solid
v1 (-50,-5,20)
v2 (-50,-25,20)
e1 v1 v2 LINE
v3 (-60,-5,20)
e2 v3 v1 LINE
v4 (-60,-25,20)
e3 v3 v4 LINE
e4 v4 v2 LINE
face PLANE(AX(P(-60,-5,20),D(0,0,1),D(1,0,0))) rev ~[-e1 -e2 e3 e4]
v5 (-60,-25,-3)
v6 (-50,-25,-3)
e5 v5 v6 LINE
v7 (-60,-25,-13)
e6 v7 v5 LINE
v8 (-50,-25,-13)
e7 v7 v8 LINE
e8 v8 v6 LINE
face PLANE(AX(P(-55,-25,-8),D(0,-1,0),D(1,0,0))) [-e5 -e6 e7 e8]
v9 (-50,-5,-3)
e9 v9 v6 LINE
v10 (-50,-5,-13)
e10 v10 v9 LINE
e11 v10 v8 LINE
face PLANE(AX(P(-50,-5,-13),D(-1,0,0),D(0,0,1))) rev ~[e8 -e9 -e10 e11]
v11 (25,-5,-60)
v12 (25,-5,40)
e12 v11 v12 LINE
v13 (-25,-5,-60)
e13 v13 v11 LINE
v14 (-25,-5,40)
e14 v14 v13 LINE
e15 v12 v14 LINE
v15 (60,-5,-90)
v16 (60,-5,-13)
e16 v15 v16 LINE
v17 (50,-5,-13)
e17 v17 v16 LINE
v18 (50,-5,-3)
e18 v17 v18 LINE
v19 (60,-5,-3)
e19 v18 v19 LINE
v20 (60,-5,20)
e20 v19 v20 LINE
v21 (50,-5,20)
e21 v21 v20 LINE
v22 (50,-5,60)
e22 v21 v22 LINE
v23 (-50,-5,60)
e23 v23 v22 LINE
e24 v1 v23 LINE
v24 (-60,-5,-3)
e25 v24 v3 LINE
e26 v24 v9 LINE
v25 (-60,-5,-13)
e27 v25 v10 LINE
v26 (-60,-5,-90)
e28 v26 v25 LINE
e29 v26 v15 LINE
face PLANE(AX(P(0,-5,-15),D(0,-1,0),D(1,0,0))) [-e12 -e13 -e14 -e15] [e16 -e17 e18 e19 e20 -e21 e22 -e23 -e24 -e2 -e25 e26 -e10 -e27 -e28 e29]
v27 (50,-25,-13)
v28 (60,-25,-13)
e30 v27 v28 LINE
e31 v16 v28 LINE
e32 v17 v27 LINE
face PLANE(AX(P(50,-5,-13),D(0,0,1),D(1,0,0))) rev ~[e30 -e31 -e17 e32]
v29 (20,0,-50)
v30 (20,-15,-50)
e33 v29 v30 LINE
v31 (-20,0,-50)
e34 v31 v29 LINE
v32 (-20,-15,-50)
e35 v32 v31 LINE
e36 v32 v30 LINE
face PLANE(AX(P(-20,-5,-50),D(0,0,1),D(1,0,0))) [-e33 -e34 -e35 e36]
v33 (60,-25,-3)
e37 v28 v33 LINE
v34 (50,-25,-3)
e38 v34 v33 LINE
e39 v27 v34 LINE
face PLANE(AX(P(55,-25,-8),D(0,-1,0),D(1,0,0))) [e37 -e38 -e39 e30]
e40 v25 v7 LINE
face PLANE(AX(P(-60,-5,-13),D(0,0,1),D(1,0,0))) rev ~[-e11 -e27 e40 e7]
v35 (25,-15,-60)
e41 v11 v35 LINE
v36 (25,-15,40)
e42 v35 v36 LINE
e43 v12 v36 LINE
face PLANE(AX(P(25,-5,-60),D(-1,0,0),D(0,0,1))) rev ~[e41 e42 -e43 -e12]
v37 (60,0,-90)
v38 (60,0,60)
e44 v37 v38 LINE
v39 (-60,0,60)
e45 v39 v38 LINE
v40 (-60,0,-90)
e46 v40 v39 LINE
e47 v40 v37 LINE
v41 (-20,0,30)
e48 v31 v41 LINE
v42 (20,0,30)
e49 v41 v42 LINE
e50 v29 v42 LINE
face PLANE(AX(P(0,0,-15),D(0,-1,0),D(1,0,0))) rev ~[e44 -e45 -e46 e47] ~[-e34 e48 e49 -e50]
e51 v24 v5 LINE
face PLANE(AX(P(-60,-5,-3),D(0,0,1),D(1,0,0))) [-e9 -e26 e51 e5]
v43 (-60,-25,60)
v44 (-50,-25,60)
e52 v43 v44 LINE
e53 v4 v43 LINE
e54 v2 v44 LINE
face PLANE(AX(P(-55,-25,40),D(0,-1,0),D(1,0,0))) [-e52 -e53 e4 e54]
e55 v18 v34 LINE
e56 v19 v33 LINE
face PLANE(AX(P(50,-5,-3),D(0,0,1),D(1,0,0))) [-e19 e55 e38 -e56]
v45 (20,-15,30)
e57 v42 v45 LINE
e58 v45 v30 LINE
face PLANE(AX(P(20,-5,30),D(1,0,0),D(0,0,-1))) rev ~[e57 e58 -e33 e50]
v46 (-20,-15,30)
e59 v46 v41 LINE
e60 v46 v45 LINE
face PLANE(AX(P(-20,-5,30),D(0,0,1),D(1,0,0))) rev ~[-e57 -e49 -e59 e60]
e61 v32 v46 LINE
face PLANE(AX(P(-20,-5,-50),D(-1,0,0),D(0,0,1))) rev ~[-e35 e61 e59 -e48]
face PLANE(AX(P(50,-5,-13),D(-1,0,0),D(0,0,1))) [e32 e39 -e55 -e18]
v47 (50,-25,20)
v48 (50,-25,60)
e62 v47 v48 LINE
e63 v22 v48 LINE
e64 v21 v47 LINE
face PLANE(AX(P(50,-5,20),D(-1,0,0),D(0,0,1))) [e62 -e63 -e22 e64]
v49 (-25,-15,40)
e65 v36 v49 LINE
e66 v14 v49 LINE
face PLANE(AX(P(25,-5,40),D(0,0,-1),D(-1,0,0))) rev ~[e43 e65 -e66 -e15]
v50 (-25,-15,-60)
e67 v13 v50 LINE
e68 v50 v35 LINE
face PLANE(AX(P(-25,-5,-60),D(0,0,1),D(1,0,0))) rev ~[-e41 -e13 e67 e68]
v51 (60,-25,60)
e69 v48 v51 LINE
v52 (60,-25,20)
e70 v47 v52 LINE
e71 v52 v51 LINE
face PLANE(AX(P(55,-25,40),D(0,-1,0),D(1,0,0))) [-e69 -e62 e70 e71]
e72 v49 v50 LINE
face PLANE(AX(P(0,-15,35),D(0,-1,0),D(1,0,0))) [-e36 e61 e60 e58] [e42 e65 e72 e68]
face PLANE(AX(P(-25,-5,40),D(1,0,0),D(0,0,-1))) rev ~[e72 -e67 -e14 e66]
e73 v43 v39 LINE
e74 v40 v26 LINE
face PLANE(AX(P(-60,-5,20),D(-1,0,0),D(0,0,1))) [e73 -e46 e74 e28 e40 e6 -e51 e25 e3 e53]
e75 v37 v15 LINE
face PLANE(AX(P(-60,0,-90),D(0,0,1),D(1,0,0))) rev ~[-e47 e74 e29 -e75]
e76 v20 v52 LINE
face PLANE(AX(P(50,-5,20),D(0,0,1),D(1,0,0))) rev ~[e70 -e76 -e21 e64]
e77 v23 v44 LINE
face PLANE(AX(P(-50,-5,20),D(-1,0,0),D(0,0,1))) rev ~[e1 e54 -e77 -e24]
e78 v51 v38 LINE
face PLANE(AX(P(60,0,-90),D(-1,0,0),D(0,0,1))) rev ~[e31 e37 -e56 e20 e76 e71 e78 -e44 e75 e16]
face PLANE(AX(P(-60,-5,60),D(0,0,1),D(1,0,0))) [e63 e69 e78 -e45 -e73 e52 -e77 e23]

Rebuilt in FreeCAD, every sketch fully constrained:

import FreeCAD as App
import Part
import Sketcher
Q = App.Units.Quantity


def add_polygon(sketch, points):
    """Adds a closed chain of lines whose ends are joined by coincident constraints."""
    first, n = sketch.GeometryCount, len(points)
    for a, b in zip(points, points[1:] + points[:1]):
        sketch.addGeometry(Part.LineSegment(App.Vector(*a, 0), App.Vector(*b, 0)), False)
    for i in range(n):
        sketch.addConstraint(Sketcher.Constraint("Coincident", first + i, 2, first + (i + 1) % n, 1))

doc = App.newDocument("Part")
body = doc.addObject("PartDesign::Body", "Body")

sketch1 = body.newObject("Sketcher::SketchObject", "Sketch")
sketch1.AttachmentSupport = (doc.getObject("XZ_Plane"), [""])
sketch1.MapMode = "FlatFace"
add_polygon(sketch1, [(-60, 60), (-60, -90), (60, -90), (60, 60)])
sketch1.addConstraint([
    Sketcher.Constraint("Vertical", 0),
    Sketcher.Constraint("Horizontal", 1),
    Sketcher.Constraint("Vertical", 2),
    Sketcher.Constraint("Horizontal", 3),
    Sketcher.Constraint("DistanceX", 1, 1, 1, 2, Q("120 mm")),
    Sketcher.Constraint("DistanceY", 0, 2, 0, 1, Q("150 mm")),
    Sketcher.Constraint("DistanceX", 0, 2, -1, 1, Q("60 mm")),
    Sketcher.Constraint("DistanceY", 0, 2, -1, 1, Q("90 mm")),
])
pad1 = body.newObject("PartDesign::Pad", "Pad")
pad1.Profile = sketch1
pad1.Length = 5

sketch2 = body.newObject("Sketcher::SketchObject", "Sketch001")
sketch2.AttachmentSupport = (doc.getObject("XZ_Plane"), [""])
sketch2.MapMode = "FlatFace"
sketch2.AttachmentOffset = App.Placement(App.Vector(0, 0, 5), App.Rotation())
add_polygon(sketch2, [(-20, 30), (-20, -50), (20, -50), (20, 30)])
sketch2.addConstraint([
    Sketcher.Constraint("Vertical", 0),
    Sketcher.Constraint("Horizontal", 1),
    Sketcher.Constraint("Vertical", 2),
    Sketcher.Constraint("Horizontal", 3),
    Sketcher.Constraint("DistanceX", 1, 1, 1, 2, Q("40 mm")),
    Sketcher.Constraint("DistanceY", 0, 2, 0, 1, Q("80 mm")),
    Sketcher.Constraint("DistanceX", 0, 2, -1, 1, Q("20 mm")),
    Sketcher.Constraint("DistanceY", 0, 2, -1, 1, Q("50 mm")),
])
pocket1 = body.newObject("PartDesign::Pocket", "Pocket")
pocket1.Profile = sketch2
pocket1.Type = "ThroughAll"

sketch3 = body.newObject("Sketcher::SketchObject", "Sketch002")
sketch3.AttachmentSupport = (doc.getObject("XZ_Plane"), [""])
sketch3.MapMode = "FlatFace"
sketch3.AttachmentOffset = App.Placement(App.Vector(0, 0, 5), App.Rotation())
add_polygon(sketch3, [(-60, 60), (-60, 20), (-50, 20), (-50, 60)])
add_polygon(sketch3, [(-60, -3), (-60, -13), (-50, -13), (-50, -3)])
add_polygon(sketch3, [(50, 60), (50, 20), (60, 20), (60, 60)])
add_polygon(sketch3, [(50, -3), (50, -13), (60, -13), (60, -3)])
sketch3.addConstraint([
    Sketcher.Constraint("Vertical", 0),
    Sketcher.Constraint("Horizontal", 1),
    Sketcher.Constraint("Vertical", 2),
    Sketcher.Constraint("Horizontal", 3),
    Sketcher.Constraint("Vertical", 4),
    Sketcher.Constraint("Horizontal", 5),
    Sketcher.Constraint("Vertical", 6),
    Sketcher.Constraint("Horizontal", 7),
    Sketcher.Constraint("Vertical", 8),
    Sketcher.Constraint("Horizontal", 9),
    Sketcher.Constraint("Vertical", 10),
    Sketcher.Constraint("Horizontal", 11),
    Sketcher.Constraint("Vertical", 12),
    Sketcher.Constraint("Horizontal", 13),
    Sketcher.Constraint("Vertical", 14),
    Sketcher.Constraint("Horizontal", 15),
    Sketcher.Constraint("Symmetric", 1, 2, 8, 2, -2),
    Sketcher.Constraint("Symmetric", 3, 2, 10, 2, -2),
    Sketcher.Constraint("Symmetric", 5, 2, 12, 2, -2),
    Sketcher.Constraint("Symmetric", 7, 2, 14, 2, -2),
    Sketcher.Constraint("Vertical", 3, 2, 4, 2),
    Sketcher.Constraint("Vertical", 2, 2, 5, 2),
    Sketcher.Constraint("Equal", 15, 4),
    Sketcher.Constraint("DistanceX", 1, 1, 1, 2, Q("10 mm")),
    Sketcher.Constraint("DistanceY", 0, 2, 0, 1, Q("40 mm")),
    Sketcher.Constraint("DistanceX", 0, 2, -1, 1, Q("60 mm")),
    Sketcher.Constraint("DistanceY", -1, 1, 0, 2, Q("20 mm")),
    Sketcher.Constraint("DistanceY", 4, 2, -1, 1, Q("13 mm")),
])
pad2 = body.newObject("PartDesign::Pad", "Pad001")
pad2.Profile = sketch3
pad2.Length = 20

sketch4 = body.newObject("Sketcher::SketchObject", "Sketch003")
sketch4.AttachmentSupport = (doc.getObject("XZ_Plane"), [""])
sketch4.MapMode = "FlatFace"
sketch4.AttachmentOffset = App.Placement(App.Vector(0, 0, 5), App.Rotation())
add_polygon(sketch4, [(25, -60), (25, 40), (-25, 40), (-25, -60)])
add_polygon(sketch4, [(-20, 30), (20, 30), (20, -50), (-20, -50)])
sketch4.addConstraint([
    Sketcher.Constraint("Vertical", 0),
    Sketcher.Constraint("Horizontal", 1),
    Sketcher.Constraint("Vertical", 2),
    Sketcher.Constraint("Horizontal", 3),
    Sketcher.Constraint("Horizontal", 4),
    Sketcher.Constraint("Vertical", 5),
    Sketcher.Constraint("Horizontal", 6),
    Sketcher.Constraint("Vertical", 7),
    Sketcher.Constraint("DistanceX", 1, 2, 1, 1, Q("50 mm")),
    Sketcher.Constraint("DistanceX", 4, 1, 4, 2, Q("40 mm")),
    Sketcher.Constraint("DistanceY", 0, 1, 0, 2, Q("100 mm")),
    Sketcher.Constraint("DistanceY", 5, 2, 5, 1, Q("80 mm")),
    Sketcher.Constraint("DistanceX", -1, 1, 0, 2, Q("25 mm")),
    Sketcher.Constraint("DistanceY", -1, 1, 0, 2, Q("40 mm")),
    Sketcher.Constraint("DistanceX", -1, 1, 4, 2, Q("20 mm")),
    Sketcher.Constraint("DistanceY", -1, 1, 4, 2, Q("30 mm")),
])
pad3 = body.newObject("PartDesign::Pad", "Pad002")
pad3.Profile = sketch4
pad3.Length = 10

doc.recompute()
